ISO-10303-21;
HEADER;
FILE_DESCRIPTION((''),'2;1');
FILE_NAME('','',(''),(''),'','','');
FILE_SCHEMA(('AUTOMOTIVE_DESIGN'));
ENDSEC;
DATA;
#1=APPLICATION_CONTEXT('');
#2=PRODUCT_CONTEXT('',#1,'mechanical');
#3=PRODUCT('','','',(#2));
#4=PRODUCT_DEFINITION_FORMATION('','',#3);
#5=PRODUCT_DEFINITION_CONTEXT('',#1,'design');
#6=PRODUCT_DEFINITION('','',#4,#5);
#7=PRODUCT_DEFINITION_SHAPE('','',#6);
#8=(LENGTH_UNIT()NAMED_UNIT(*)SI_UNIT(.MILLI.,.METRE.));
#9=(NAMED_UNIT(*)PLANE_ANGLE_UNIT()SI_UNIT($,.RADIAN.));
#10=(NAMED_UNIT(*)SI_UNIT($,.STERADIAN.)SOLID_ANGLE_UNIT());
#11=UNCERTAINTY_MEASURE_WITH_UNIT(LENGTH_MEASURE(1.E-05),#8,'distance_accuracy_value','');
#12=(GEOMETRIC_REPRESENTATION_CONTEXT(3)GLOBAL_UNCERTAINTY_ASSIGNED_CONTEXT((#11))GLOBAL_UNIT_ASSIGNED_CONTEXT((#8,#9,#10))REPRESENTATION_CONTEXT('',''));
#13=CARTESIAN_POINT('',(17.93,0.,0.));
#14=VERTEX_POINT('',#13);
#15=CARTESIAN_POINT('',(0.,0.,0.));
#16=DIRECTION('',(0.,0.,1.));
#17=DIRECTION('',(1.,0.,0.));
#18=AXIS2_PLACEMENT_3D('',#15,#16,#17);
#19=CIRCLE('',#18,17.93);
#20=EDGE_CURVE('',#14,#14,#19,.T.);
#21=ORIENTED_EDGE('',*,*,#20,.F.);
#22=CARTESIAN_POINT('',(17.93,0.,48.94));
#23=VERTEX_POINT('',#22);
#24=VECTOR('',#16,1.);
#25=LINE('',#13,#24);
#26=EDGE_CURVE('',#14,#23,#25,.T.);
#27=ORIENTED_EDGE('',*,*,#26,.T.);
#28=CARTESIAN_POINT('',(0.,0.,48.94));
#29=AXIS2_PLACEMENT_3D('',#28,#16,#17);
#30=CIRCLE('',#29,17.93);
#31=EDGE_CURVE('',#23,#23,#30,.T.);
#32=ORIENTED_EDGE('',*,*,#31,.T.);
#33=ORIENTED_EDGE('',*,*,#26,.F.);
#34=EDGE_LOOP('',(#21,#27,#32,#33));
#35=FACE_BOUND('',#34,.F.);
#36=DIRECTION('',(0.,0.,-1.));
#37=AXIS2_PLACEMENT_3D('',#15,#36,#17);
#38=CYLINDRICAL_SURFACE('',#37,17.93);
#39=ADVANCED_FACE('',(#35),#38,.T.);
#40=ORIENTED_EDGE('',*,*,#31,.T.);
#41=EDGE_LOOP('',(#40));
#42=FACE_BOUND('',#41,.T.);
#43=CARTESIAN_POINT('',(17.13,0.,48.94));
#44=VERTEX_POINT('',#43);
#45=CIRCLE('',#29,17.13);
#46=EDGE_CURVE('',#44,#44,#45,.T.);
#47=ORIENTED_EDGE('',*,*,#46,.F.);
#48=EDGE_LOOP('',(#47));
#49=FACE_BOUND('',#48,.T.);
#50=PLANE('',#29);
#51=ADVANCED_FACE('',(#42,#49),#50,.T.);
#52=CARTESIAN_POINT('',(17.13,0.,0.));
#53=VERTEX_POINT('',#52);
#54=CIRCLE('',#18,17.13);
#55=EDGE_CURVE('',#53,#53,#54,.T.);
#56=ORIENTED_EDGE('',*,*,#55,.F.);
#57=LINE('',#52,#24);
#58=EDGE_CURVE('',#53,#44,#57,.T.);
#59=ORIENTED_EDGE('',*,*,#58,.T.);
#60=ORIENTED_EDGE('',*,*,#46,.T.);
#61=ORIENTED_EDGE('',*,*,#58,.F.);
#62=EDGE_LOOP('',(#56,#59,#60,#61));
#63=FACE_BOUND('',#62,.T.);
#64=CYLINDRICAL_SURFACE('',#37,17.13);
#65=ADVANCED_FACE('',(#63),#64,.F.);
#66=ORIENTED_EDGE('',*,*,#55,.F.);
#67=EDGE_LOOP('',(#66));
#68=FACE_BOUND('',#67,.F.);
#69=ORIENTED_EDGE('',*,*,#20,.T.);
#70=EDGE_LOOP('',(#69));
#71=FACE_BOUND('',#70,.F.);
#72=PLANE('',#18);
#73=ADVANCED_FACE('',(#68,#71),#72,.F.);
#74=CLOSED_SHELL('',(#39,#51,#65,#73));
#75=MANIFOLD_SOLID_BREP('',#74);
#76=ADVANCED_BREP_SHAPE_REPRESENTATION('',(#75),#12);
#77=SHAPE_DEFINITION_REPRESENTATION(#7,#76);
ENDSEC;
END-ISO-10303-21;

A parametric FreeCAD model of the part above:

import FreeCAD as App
import Part
import Sketcher
from FreeCAD import Vector
Q = App.Units.Quantity

doc = App.newDocument("Part")
body = doc.addObject("PartDesign::Body", "Body")

# Sketch on XY plane
sketch1 = body.newObject("Sketcher::SketchObject", "Sketch")
sketch1.AttachmentSupport = (doc.getObject("XY_Plane"), [""])
sketch1.MapMode = "FlatFace"
sketch1.addGeometry(Part.Circle(Vector(0, 0, 0), Vector(0, 0, 1), 18), False)
sketch1.addGeometry(Part.Circle(Vector(0, 0, 0), Vector(0, 0, 1), 17), False)
sketch1.addConstraint(Sketcher.Constraint("Coincident", 0, 3, -1, 1))
sketch1.addConstraint(Sketcher.Constraint("Coincident", 1, 3, -1, 1))
sketch1.addConstraint(Sketcher.Constraint("Diameter", 0, Q("35.86 mm")))
sketch1.addConstraint(Sketcher.Constraint("Diameter", 1, Q("34.26 mm")))
pad1 = body.newObject("PartDesign::Pad", "Pad")
pad1.Profile = sketch1
pad1.Length = 48.94

doc.recompute()
